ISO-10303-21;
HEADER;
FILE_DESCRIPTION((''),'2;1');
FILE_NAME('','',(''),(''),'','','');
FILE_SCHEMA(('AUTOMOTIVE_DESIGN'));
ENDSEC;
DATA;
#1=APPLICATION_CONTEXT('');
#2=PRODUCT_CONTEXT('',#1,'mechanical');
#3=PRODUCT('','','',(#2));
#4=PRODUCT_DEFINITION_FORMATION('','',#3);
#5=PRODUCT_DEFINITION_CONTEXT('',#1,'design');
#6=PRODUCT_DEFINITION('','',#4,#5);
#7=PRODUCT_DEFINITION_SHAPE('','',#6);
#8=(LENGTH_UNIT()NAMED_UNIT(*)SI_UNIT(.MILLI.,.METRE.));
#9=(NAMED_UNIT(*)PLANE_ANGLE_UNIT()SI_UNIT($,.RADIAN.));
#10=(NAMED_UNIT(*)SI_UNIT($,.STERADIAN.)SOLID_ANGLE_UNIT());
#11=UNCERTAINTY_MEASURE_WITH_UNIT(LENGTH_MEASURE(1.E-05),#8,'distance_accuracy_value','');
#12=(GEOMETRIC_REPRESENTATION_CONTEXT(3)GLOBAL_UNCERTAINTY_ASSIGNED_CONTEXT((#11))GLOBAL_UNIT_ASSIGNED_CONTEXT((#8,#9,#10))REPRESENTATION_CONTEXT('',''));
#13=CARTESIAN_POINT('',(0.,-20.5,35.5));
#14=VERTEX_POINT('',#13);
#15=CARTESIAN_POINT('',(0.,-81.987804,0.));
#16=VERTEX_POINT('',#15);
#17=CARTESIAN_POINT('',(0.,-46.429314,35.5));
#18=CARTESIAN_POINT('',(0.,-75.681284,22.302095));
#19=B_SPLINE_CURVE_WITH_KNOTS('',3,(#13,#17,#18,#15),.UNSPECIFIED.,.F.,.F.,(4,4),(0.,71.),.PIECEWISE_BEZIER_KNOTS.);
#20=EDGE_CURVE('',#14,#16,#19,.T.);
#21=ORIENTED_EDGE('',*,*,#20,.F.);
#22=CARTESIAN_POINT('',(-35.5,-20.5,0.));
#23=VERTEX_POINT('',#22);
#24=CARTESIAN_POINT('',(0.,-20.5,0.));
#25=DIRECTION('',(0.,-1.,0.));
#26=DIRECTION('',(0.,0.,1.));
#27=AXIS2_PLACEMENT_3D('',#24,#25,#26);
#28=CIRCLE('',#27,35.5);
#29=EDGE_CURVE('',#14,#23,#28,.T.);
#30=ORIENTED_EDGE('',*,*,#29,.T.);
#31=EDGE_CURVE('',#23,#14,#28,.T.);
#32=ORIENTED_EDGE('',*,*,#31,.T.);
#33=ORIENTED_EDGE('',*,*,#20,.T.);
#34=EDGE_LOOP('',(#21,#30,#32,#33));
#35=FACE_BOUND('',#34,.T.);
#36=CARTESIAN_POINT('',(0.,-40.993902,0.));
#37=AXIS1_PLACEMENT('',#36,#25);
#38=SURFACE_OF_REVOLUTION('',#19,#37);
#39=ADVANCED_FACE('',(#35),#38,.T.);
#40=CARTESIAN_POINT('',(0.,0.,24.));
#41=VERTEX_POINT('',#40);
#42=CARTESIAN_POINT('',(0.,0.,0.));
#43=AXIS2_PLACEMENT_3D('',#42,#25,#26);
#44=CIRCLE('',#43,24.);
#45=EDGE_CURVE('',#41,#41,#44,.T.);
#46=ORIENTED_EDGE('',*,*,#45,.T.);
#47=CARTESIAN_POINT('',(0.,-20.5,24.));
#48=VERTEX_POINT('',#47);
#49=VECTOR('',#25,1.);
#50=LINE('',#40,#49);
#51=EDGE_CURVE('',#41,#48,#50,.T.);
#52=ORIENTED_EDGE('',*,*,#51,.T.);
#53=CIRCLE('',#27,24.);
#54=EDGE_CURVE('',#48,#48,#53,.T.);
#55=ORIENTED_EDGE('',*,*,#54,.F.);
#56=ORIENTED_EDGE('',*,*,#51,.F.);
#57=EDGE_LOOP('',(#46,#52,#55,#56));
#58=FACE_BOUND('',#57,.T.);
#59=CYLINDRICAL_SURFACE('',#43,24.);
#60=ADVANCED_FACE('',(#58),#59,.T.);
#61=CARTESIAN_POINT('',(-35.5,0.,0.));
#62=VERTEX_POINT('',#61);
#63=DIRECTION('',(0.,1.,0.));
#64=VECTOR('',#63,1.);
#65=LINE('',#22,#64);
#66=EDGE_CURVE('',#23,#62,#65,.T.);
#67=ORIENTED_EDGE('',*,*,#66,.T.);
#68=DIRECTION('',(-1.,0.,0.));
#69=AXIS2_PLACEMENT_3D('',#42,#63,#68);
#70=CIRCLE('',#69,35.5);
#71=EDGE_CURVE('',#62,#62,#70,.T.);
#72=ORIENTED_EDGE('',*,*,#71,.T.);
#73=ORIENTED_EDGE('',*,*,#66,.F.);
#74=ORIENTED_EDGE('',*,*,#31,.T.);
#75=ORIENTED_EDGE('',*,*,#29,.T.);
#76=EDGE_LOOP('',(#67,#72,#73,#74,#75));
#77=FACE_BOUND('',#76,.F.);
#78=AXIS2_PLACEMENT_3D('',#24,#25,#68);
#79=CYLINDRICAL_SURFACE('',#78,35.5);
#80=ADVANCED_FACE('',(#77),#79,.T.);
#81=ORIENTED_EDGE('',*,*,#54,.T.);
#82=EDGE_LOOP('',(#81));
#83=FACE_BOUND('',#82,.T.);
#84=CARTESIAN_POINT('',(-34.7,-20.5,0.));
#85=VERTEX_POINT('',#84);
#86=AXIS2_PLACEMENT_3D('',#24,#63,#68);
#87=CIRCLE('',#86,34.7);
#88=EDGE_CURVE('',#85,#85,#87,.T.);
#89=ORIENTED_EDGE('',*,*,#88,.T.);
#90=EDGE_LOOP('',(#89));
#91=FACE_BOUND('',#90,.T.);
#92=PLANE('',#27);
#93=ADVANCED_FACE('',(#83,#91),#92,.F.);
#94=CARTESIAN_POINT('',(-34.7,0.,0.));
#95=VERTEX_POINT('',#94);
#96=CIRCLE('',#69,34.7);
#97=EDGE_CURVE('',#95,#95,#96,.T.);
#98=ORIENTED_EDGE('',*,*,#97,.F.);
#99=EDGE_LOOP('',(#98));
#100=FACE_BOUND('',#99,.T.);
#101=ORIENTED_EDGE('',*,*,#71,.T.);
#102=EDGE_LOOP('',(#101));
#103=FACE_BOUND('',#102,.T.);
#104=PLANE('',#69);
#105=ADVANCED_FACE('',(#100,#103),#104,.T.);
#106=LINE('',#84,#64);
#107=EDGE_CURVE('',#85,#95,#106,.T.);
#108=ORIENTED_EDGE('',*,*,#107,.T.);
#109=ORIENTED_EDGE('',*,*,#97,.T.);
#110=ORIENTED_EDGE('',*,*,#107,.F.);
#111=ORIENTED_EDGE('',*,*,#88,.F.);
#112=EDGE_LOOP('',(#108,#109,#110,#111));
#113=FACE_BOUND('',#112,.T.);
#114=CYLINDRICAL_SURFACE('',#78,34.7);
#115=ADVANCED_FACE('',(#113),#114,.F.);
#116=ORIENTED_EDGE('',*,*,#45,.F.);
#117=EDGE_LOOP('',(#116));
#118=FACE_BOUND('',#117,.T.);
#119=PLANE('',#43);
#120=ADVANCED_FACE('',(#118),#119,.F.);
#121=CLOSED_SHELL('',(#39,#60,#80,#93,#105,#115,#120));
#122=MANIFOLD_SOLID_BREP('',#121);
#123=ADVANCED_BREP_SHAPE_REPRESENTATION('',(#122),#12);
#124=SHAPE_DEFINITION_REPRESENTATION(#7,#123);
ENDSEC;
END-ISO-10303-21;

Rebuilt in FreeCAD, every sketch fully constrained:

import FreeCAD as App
import Part
import Sketcher
from FreeCAD import Vector
Q = App.Units.Quantity

doc = App.newDocument("Part")
body = doc.addObject("PartDesign::Body", "Body")

# Sketch on YZ plane
sketch1 = body.newObject("Sketcher::SketchObject", "Sketch")
sketch1.AttachmentSupport = (doc.getObject("YZ_Plane"), [""])
sketch1.MapMode = "FlatFace"
sketch1.addGeometry(Part.LineSegment(Vector(-81.987804, 0, 0), Vector(0, 0, 0)), False)
sketch1.addGeometry(Part.LineSegment(Vector(0, 0, 0), Vector(0, 24, 0)), False)
sketch1.addGeometry(Part.LineSegment(Vector(0, 24, 0), Vector(-20.5, 24, 0)), False)
sketch1.addGeometry(Part.LineSegment(Vector(-20.5, 24, 0), Vector(-20.5, 35.5, 0)), False)
sketch1.addGeometry(Part.BSplineCurve([Vector(-20.5, 35.5, 0), Vector(-46.429314, 35.5, 0), Vector(-75.681284, 22.302095, 0), Vector(-81.987804, 0, 0)], [4, 4], [0, 71], False, 3, [1, 1, 1, 1], False), False)
sketch1.addConstraint(Sketcher.Constraint("Block", 4))
sketch1.addConstraint(Sketcher.Constraint("Coincident", 0, 2, 1, 1))
sketch1.addConstraint(Sketcher.Constraint("Coincident", 1, 2, 2, 1))
sketch1.addConstraint(Sketcher.Constraint("Coincident", 2, 2, 3, 1))
sketch1.addConstraint(Sketcher.Constraint("Coincident", 3, 2, 4, 1))
sketch1.addConstraint(Sketcher.Constraint("Coincident", 4, 2, 0, 1))
sketch1.addConstraint(Sketcher.Constraint("Horizontal", 0))
sketch1.addConstraint(Sketcher.Constraint("Vertical", 1))
sketch1.addConstraint(Sketcher.Constraint("Horizontal", 2))
sketch1.addConstraint(Sketcher.Constraint("Vertical", 3))
sketch1.addConstraint(Sketcher.Constraint("PointOnObject", 1, 2, -2))
sketch1.addConstraint(Sketcher.Constraint("DistanceY", 1, 1, 1, 2, Q("24 mm")))
revolution = body.newObject("PartDesign::Revolution", "Revolution")
revolution.Profile = sketch1
revolution.ReferenceAxis = (sketch1, ["H_Axis"])
revolution.Angle = 360

# Sketch on XZ plane
sketch2 = body.newObject("Sketcher::SketchObject", "Sketch001")
sketch2.AttachmentSupport = (doc.getObject("XZ_Plane"), [""])
sketch2.MapMode = "FlatFace"
sketch2.AttachmentOffset = App.Placement(Vector(0, 0, 20.5), App.Rotation())
sketch2.addGeometry(Part.Circle(Vector(0, 0, 0), Vector(0, 0, 1), 36), False)
sketch2.addGeometry(Part.Circle(Vector(0, 0, 0), Vector(0, 0, 1), 35), False)
sketch2.addConstraint(Sketcher.Constraint("Coincident", 0, 3, -1, 1))
sketch2.addConstraint(Sketcher.Constraint("Coincident", 1, 3, -1, 1))
sketch2.addConstraint(Sketcher.Constraint("Diameter", 0, Q("71 mm")))
sketch2.addConstraint(Sketcher.Constraint("Diameter", 1, Q("69.4 mm")))
pad1 = body.newObject("PartDesign::Pad", "Pad")
pad1.Profile = sketch2
pad1.Type = "UpToLast"
pad1.Reversed = True

doc.recompute()
